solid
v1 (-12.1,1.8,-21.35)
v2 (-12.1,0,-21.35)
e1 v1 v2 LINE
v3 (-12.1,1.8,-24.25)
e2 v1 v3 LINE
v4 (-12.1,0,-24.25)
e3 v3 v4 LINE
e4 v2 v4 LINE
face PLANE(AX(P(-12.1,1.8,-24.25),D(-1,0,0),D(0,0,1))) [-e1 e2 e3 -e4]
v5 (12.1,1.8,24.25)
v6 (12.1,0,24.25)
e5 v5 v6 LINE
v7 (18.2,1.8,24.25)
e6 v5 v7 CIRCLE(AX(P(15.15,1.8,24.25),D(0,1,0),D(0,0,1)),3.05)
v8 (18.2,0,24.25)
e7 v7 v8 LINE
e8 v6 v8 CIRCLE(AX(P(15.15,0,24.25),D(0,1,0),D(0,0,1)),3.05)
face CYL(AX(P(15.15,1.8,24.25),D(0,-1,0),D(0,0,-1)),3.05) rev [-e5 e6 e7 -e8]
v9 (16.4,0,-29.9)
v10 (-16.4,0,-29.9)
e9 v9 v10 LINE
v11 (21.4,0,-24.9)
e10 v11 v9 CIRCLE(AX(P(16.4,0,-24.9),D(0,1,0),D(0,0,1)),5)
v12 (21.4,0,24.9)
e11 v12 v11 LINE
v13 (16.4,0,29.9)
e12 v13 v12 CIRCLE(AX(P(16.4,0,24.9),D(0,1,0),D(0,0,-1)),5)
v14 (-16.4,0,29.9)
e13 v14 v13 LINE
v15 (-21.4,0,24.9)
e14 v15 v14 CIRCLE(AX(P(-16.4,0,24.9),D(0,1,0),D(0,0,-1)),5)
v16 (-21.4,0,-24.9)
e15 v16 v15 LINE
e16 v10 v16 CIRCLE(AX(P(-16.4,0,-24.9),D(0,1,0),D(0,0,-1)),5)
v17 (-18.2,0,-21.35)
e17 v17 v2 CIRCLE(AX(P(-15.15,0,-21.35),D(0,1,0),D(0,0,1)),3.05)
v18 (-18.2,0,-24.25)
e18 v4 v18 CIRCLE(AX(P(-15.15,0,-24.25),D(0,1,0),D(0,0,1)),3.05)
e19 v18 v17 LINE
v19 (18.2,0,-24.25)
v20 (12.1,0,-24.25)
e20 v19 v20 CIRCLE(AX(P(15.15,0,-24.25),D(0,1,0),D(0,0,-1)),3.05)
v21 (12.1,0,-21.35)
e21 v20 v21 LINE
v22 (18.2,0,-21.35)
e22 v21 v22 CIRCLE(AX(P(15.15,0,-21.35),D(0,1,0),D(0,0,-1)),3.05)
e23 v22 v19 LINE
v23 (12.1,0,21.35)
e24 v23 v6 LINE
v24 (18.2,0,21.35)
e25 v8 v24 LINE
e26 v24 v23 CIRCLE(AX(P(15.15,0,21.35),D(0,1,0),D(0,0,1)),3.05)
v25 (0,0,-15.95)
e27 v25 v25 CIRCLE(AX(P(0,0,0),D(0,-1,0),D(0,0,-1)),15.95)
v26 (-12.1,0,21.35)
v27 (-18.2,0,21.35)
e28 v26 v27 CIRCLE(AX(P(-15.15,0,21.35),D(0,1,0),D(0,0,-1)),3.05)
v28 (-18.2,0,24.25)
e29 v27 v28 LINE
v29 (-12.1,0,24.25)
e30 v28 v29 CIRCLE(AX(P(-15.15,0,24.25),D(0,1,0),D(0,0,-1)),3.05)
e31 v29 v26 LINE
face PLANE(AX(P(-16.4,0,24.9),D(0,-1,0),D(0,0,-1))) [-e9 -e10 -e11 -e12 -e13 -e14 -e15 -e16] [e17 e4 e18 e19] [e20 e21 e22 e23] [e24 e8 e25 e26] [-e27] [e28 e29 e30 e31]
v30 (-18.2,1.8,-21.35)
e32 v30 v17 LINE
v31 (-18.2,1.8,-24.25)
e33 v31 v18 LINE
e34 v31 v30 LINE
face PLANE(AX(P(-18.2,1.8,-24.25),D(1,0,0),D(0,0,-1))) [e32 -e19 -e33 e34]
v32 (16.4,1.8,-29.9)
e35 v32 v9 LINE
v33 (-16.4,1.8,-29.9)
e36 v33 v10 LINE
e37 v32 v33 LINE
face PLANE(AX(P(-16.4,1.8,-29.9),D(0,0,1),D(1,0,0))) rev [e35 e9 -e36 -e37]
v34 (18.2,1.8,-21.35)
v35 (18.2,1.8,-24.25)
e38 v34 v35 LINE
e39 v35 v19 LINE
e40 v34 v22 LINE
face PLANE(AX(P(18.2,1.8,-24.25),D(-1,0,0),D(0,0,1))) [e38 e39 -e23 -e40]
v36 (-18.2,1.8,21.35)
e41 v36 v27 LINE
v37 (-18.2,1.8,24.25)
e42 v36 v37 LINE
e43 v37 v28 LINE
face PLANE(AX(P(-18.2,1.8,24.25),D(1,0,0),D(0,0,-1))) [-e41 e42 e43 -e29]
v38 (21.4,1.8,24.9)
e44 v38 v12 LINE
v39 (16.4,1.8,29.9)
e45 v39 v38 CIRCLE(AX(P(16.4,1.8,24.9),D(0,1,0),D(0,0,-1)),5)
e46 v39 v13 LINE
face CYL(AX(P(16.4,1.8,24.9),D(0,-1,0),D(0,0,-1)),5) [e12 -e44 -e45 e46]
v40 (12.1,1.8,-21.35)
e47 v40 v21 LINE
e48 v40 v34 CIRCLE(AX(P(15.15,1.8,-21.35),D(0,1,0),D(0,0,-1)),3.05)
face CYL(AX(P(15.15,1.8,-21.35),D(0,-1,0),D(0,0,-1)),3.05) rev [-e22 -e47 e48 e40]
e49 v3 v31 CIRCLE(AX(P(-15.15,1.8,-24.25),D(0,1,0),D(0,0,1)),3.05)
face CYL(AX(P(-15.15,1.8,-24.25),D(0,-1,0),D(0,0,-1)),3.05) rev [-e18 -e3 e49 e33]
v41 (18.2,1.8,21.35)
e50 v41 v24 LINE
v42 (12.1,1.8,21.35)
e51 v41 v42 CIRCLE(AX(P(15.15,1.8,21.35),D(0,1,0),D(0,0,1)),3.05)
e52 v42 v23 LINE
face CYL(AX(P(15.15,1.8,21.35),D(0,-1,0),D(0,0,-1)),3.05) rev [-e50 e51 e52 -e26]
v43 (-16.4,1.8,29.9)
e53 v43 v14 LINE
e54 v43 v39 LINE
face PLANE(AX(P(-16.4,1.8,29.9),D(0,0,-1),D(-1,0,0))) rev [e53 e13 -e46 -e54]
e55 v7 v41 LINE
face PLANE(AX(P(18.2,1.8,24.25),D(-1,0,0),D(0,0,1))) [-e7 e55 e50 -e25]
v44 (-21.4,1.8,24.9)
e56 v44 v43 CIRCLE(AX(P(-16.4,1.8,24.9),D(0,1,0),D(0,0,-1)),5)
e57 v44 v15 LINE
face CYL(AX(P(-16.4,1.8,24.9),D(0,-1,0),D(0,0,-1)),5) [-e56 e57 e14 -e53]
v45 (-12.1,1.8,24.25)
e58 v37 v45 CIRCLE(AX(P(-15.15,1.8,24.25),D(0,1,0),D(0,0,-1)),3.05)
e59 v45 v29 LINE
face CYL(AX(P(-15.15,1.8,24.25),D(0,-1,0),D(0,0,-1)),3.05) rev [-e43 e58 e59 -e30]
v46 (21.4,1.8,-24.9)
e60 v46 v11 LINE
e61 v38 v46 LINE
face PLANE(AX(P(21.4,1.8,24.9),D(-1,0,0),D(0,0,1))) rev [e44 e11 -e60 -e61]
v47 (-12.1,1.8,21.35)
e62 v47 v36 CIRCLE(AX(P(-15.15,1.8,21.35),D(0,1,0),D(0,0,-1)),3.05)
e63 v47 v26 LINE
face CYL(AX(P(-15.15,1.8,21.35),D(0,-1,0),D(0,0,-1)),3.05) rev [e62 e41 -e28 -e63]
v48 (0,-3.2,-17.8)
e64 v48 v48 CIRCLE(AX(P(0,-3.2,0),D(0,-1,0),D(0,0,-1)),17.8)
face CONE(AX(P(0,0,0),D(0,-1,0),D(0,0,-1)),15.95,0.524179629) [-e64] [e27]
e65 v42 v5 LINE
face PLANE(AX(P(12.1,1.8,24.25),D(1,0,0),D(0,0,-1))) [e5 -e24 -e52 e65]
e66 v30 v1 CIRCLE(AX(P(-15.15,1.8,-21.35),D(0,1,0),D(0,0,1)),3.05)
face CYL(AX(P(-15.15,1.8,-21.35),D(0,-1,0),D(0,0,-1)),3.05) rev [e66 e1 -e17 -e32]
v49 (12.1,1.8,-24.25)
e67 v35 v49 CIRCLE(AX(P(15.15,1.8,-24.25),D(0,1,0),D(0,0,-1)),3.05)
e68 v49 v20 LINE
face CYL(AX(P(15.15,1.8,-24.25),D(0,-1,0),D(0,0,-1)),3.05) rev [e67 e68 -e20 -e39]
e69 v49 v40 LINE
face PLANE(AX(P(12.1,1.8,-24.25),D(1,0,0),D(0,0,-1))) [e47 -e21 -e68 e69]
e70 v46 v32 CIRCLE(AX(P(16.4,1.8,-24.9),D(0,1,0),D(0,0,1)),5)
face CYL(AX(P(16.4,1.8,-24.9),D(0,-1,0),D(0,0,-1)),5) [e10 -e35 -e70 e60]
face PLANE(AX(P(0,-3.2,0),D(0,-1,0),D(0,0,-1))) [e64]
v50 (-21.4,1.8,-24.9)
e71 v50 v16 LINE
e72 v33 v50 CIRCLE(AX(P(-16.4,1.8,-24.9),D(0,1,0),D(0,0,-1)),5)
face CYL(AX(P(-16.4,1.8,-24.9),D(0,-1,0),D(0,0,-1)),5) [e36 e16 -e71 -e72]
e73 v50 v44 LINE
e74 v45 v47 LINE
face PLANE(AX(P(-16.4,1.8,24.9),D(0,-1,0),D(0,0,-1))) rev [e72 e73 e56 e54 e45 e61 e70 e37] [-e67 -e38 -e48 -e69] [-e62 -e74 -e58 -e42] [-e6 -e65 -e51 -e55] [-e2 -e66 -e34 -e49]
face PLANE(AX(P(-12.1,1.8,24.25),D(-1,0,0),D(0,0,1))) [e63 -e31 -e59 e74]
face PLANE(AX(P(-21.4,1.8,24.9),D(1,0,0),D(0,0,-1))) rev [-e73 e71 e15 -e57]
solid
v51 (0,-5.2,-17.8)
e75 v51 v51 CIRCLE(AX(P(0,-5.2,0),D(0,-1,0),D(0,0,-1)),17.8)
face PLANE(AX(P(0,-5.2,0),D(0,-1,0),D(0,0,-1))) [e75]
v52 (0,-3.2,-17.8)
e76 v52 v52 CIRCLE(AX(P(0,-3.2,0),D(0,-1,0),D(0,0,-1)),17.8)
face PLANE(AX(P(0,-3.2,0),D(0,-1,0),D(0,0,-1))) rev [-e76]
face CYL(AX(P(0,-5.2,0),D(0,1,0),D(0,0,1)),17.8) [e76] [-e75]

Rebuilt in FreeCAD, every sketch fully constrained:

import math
import FreeCAD as App
import Part
import Sketcher
from FreeCAD import Vector
Q = App.Units.Quantity

doc = App.newDocument("Part")
params = doc.addObject("Spreadsheet::Sheet", "Params")
for row, (alias, value) in enumerate([
    ("sketch1_radius", "5 mm"),
    ("sketch1_radius2", "3.05 mm"),
    ("sketch1_width", "32.8 mm"),
    ("sketch1_height", "49.8 mm"),
    ("sketch1_height2", "2.9 mm"),
    ("pad1_length", "1.8 mm"),
    ("sketch2_diameter", "35.6 mm"),
    ("sketch3_diameter", "31.9 mm"),
    ("sketch4_diameter", "35.6 mm"),
    ("pad2_length", "2 mm"),
], start=1):
    params.set(f"A{row}", alias)
    params.set(f"B{row}", "=" + value)
    params.setAlias(f"B{row}", alias)

body = doc.addObject("PartDesign::Body", "Body")

# Sketch on XZ plane
sketch1 = doc.addObject("Sketcher::SketchObject", "Sketch")
body.addObject(sketch1)
sketch1.AttachmentSupport = (doc.XZ_Plane, [""])
sketch1.MapMode = "FlatFace"
sketch1.addGeometry([
    Part.LineSegment(Vector(-16.4, 29.9, 0), Vector(16.4, 29.9, 0)),  # 0
    Part.ArcOfCircle(Part.Circle(Vector(16.4, 24.9, 0), Vector(0, 0, 1), 5), math.radians(0), math.radians(90)),  # 1
    Part.LineSegment(Vector(21.4, 24.9, 0), Vector(21.4, -24.9, 0)),  # 2
    Part.ArcOfCircle(Part.Circle(Vector(16.4, -24.9, 0), Vector(0, 0, 1), 5), math.radians(-90), math.radians(0)),  # 3
    Part.LineSegment(Vector(16.4, -29.9, 0), Vector(-16.4, -29.9, 0)),  # 4
    Part.ArcOfCircle(Part.Circle(Vector(-16.4, -24.9, 0), Vector(0, 0, 1), 5), math.radians(180), math.radians(270)),  # 5
    Part.LineSegment(Vector(-21.4, -24.9, 0), Vector(-21.4, 24.9, 0)),  # 6
    Part.ArcOfCircle(Part.Circle(Vector(-16.4, 24.9, 0), Vector(0, 0, 1), 5), math.radians(90), math.radians(180)),  # 7
    Part.LineSegment(Vector(-12.1, 21.4, 0), Vector(-12.1, 24.2, 0)),  # 8
    Part.ArcOfCircle(Part.Circle(Vector(-15.2, 24.2, 0), Vector(0, 0, 1), 3), math.radians(0), math.radians(180)),  # 9
    Part.LineSegment(Vector(-18.2, 24.2, 0), Vector(-18.2, 21.4, 0)),  # 10
    Part.ArcOfCircle(Part.Circle(Vector(-15.2, 21.4, 0), Vector(0, 0, 1), 3), math.radians(180), math.radians(360)),  # 11
    Part.ArcOfCircle(Part.Circle(Vector(15.2, 24.2, 0), Vector(0, 0, 1), 3), math.radians(0), math.radians(180)),  # 12
    Part.LineSegment(Vector(12.1, 24.2, 0), Vector(12.1, 21.4, 0)),  # 13
    Part.ArcOfCircle(Part.Circle(Vector(15.2, 21.4, 0), Vector(0, 0, 1), 3), math.radians(180), math.radians(360)),  # 14
    Part.LineSegment(Vector(18.2, 21.4, 0), Vector(18.2, 24.2, 0)),  # 15
    Part.ArcOfCircle(Part.Circle(Vector(-15.2, -24.2, 0), Vector(0, 0, 1), 3), math.radians(180), math.radians(360)),  # 16
    Part.LineSegment(Vector(-12.1, -24.2, 0), Vector(-12.1, -21.4, 0)),  # 17
    Part.ArcOfCircle(Part.Circle(Vector(-15.2, -21.4, 0), Vector(0, 0, 1), 3), math.radians(0), math.radians(180)),  # 18
    Part.LineSegment(Vector(-18.2, -21.4, 0), Vector(-18.2, -24.2, 0)),  # 19
    Part.LineSegment(Vector(12.1, -21.4, 0), Vector(12.1, -24.2, 0)),  # 20
    Part.ArcOfCircle(Part.Circle(Vector(15.2, -24.2, 0), Vector(0, 0, 1), 3), math.radians(180), math.radians(360)),  # 21
    Part.LineSegment(Vector(18.2, -24.2, 0), Vector(18.2, -21.4, 0)),  # 22
    Part.ArcOfCircle(Part.Circle(Vector(15.2, -21.4, 0), Vector(0, 0, 1), 3), math.radians(0), math.radians(180)),  # 23
], False)
sketch1.addConstraint([
    Sketcher.Constraint("Tangent", 0, 2, 1, 2),
    Sketcher.Constraint("Tangent", 1, 1, 2, 1),
    Sketcher.Constraint("Tangent", 2, 2, 3, 2),
    Sketcher.Constraint("Tangent", 3, 1, 4, 1),
    Sketcher.Constraint("Tangent", 4, 2, 5, 2),
    Sketcher.Constraint("Tangent", 5, 1, 6, 1),
    Sketcher.Constraint("Tangent", 6, 2, 7, 2),
    Sketcher.Constraint("Tangent", 7, 1, 0, 1),
    Sketcher.Constraint("Tangent", 8, 2, 9, 1),
    Sketcher.Constraint("Tangent", 9, 2, 10, 1),
    Sketcher.Constraint("Tangent", 10, 2, 11, 1),
    Sketcher.Constraint("Tangent", 11, 2, 8, 1),
    Sketcher.Constraint("Tangent", 12, 2, 13, 1),
    Sketcher.Constraint("Tangent", 13, 2, 14, 1),
    Sketcher.Constraint("Tangent", 14, 2, 15, 1),
    Sketcher.Constraint("Tangent", 15, 2, 12, 1),
    Sketcher.Constraint("Tangent", 16, 2, 17, 1),
    Sketcher.Constraint("Tangent", 17, 2, 18, 1),
    Sketcher.Constraint("Tangent", 18, 2, 19, 1),
    Sketcher.Constraint("Tangent", 19, 2, 16, 1),
    Sketcher.Constraint("Tangent", 20, 2, 21, 1),
    Sketcher.Constraint("Tangent", 21, 2, 22, 1),
    Sketcher.Constraint("Tangent", 22, 2, 23, 1),
    Sketcher.Constraint("Tangent", 23, 2, 20, 1),
    Sketcher.Constraint("Horizontal", 0),
    Sketcher.Constraint("Vertical", 2),
    Sketcher.Constraint("Horizontal", 4),
    Sketcher.Constraint("Vertical", 6),
    Sketcher.Constraint("Vertical", 8),
    Sketcher.Constraint("Vertical", 10),
    Sketcher.Constraint("Vertical", 13),
    Sketcher.Constraint("Vertical", 15),
    Sketcher.Constraint("Vertical", 17),
    Sketcher.Constraint("Vertical", 19),
    Sketcher.Constraint("Vertical", 20),
    Sketcher.Constraint("Vertical", 22),
    Sketcher.Constraint("Equal", 1, 3),
    Sketcher.Constraint("Equal", 3, 5),
    Sketcher.Constraint("Equal", 5, 7),
    Sketcher.Constraint("Equal", 11, 12),
    Sketcher.Constraint("Equal", 14, 16),
    Sketcher.Constraint("Equal", 18, 21),
    Sketcher.Constraint("Symmetric", 1, 3, 5, 3, -1, 1),
    Sketcher.Constraint("Symmetric", 12, 3, 16, 3, -1, 1),
    Sketcher.Constraint("Symmetric", 9, 3, 21, 3, -1, 1),
    Sketcher.Constraint("Symmetric", 9, 3, 12, 3, -2),
    Sketcher.Constraint("Horizontal", 11, 3, 14, 3),
    Sketcher.Constraint("Horizontal", 18, 3, 23, 3),
    Sketcher.Constraint("Equal", 15, 17),
    Sketcher.Constraint("Radius", 1, Q("5 mm")),
    Sketcher.Constraint("Radius", 9, Q("3.05 mm")),
    Sketcher.Constraint("DistanceX", 0, 1, 0, 2, Q("32.8 mm")),
    Sketcher.Constraint("DistanceY", 2, 2, 2, 1, Q("49.8 mm")),
    Sketcher.Constraint("DistanceY", 8, 1, 8, 2, Q("2.9 mm")),
    Sketcher.Constraint("DistanceX", 8, 2, -1, 1, Q("12.1 mm")),
    Sketcher.Constraint("DistanceY", 16, 3, 11, 3, Q("45.6 mm")),
])
sketch1.setExpression("Constraints[49]", "Params.sketch1_radius")
sketch1.setExpression("Constraints[50]", "Params.sketch1_radius2")
sketch1.setExpression("Constraints[51]", "Params.sketch1_width")
sketch1.setExpression("Constraints[52]", "Params.sketch1_height")
sketch1.setExpression("Constraints[53]", "Params.sketch1_height2")
pad1 = doc.addObject("PartDesign::Pad", "Pad")
body.addObject(pad1)
pad1.Profile = sketch1
pad1.setExpression("Length", "Params.pad1_length")
pad1.Reversed = True

# Sketch on XZ plane
sketch2 = doc.addObject("Sketcher::SketchObject", "Sketch001")
body.addObject(sketch2)
sketch2.AttachmentSupport = (doc.XZ_Plane, [""])
sketch2.MapMode = "FlatFace"
sketch2.AttachmentOffset = App.Placement(Vector(0, 0, 3.2), App.Rotation())
sketch2.addGeometry(Part.Circle(Vector(0, 0, 0), Vector(0, 0, 1), 18), False)
sketch2.addConstraint([
    Sketcher.Constraint("Coincident", 0, 3, -1, 1),
    Sketcher.Constraint("Diameter", 0, Q("35.6 mm")),
])
sketch2.setExpression("Constraints[1]", "Params.sketch2_diameter")

# Sketch on XZ plane
sketch3 = doc.addObject("Sketcher::SketchObject", "Sketch002")
body.addObject(sketch3)
sketch3.AttachmentSupport = (doc.XZ_Plane, [""])
sketch3.MapMode = "FlatFace"
sketch3.addGeometry(Part.Circle(Vector(0, 0, 0), Vector(0, 0, 1), 16), False)
sketch3.addConstraint([
    Sketcher.Constraint("Coincident", 0, 3, -1, 1),
    Sketcher.Constraint("Diameter", 0, Q("31.9 mm")),
])
sketch3.setExpression("Constraints[1]", "Params.sketch3_diameter")

additiveloft = doc.addObject("PartDesign::AdditiveLoft", "AdditiveLoft")
body.addObject(additiveloft)
additiveloft.Profile = sketch2
additiveloft.Sections = [sketch3]
body2 = doc.addObject("PartDesign::Body", "Body001")

# Sketch on XZ plane
sketch4 = doc.addObject("Sketcher::SketchObject", "Sketch003")
body2.addObject(sketch4)
sketch4.AttachmentSupport = (doc.getObject("XZ_Plane001"), [""])
sketch4.MapMode = "FlatFace"
sketch4.AttachmentOffset = App.Placement(Vector(0, 0, 3.2), App.Rotation())
sketch4.addGeometry(Part.Circle(Vector(0, 0, 0), Vector(0, 0, 1), 18), False)
sketch4.addConstraint([
    Sketcher.Constraint("Coincident", 0, 3, -1, 1),
    Sketcher.Constraint("Diameter", 0, Q("35.6 mm")),
])
sketch4.setExpression("Constraints[1]", "Params.sketch4_diameter")
pad2 = doc.addObject("PartDesign::Pad", "Pad001")
body2.addObject(pad2)
pad2.Profile = sketch4
pad2.setExpression("Length", "Params.pad2_length")

doc.recompute()
